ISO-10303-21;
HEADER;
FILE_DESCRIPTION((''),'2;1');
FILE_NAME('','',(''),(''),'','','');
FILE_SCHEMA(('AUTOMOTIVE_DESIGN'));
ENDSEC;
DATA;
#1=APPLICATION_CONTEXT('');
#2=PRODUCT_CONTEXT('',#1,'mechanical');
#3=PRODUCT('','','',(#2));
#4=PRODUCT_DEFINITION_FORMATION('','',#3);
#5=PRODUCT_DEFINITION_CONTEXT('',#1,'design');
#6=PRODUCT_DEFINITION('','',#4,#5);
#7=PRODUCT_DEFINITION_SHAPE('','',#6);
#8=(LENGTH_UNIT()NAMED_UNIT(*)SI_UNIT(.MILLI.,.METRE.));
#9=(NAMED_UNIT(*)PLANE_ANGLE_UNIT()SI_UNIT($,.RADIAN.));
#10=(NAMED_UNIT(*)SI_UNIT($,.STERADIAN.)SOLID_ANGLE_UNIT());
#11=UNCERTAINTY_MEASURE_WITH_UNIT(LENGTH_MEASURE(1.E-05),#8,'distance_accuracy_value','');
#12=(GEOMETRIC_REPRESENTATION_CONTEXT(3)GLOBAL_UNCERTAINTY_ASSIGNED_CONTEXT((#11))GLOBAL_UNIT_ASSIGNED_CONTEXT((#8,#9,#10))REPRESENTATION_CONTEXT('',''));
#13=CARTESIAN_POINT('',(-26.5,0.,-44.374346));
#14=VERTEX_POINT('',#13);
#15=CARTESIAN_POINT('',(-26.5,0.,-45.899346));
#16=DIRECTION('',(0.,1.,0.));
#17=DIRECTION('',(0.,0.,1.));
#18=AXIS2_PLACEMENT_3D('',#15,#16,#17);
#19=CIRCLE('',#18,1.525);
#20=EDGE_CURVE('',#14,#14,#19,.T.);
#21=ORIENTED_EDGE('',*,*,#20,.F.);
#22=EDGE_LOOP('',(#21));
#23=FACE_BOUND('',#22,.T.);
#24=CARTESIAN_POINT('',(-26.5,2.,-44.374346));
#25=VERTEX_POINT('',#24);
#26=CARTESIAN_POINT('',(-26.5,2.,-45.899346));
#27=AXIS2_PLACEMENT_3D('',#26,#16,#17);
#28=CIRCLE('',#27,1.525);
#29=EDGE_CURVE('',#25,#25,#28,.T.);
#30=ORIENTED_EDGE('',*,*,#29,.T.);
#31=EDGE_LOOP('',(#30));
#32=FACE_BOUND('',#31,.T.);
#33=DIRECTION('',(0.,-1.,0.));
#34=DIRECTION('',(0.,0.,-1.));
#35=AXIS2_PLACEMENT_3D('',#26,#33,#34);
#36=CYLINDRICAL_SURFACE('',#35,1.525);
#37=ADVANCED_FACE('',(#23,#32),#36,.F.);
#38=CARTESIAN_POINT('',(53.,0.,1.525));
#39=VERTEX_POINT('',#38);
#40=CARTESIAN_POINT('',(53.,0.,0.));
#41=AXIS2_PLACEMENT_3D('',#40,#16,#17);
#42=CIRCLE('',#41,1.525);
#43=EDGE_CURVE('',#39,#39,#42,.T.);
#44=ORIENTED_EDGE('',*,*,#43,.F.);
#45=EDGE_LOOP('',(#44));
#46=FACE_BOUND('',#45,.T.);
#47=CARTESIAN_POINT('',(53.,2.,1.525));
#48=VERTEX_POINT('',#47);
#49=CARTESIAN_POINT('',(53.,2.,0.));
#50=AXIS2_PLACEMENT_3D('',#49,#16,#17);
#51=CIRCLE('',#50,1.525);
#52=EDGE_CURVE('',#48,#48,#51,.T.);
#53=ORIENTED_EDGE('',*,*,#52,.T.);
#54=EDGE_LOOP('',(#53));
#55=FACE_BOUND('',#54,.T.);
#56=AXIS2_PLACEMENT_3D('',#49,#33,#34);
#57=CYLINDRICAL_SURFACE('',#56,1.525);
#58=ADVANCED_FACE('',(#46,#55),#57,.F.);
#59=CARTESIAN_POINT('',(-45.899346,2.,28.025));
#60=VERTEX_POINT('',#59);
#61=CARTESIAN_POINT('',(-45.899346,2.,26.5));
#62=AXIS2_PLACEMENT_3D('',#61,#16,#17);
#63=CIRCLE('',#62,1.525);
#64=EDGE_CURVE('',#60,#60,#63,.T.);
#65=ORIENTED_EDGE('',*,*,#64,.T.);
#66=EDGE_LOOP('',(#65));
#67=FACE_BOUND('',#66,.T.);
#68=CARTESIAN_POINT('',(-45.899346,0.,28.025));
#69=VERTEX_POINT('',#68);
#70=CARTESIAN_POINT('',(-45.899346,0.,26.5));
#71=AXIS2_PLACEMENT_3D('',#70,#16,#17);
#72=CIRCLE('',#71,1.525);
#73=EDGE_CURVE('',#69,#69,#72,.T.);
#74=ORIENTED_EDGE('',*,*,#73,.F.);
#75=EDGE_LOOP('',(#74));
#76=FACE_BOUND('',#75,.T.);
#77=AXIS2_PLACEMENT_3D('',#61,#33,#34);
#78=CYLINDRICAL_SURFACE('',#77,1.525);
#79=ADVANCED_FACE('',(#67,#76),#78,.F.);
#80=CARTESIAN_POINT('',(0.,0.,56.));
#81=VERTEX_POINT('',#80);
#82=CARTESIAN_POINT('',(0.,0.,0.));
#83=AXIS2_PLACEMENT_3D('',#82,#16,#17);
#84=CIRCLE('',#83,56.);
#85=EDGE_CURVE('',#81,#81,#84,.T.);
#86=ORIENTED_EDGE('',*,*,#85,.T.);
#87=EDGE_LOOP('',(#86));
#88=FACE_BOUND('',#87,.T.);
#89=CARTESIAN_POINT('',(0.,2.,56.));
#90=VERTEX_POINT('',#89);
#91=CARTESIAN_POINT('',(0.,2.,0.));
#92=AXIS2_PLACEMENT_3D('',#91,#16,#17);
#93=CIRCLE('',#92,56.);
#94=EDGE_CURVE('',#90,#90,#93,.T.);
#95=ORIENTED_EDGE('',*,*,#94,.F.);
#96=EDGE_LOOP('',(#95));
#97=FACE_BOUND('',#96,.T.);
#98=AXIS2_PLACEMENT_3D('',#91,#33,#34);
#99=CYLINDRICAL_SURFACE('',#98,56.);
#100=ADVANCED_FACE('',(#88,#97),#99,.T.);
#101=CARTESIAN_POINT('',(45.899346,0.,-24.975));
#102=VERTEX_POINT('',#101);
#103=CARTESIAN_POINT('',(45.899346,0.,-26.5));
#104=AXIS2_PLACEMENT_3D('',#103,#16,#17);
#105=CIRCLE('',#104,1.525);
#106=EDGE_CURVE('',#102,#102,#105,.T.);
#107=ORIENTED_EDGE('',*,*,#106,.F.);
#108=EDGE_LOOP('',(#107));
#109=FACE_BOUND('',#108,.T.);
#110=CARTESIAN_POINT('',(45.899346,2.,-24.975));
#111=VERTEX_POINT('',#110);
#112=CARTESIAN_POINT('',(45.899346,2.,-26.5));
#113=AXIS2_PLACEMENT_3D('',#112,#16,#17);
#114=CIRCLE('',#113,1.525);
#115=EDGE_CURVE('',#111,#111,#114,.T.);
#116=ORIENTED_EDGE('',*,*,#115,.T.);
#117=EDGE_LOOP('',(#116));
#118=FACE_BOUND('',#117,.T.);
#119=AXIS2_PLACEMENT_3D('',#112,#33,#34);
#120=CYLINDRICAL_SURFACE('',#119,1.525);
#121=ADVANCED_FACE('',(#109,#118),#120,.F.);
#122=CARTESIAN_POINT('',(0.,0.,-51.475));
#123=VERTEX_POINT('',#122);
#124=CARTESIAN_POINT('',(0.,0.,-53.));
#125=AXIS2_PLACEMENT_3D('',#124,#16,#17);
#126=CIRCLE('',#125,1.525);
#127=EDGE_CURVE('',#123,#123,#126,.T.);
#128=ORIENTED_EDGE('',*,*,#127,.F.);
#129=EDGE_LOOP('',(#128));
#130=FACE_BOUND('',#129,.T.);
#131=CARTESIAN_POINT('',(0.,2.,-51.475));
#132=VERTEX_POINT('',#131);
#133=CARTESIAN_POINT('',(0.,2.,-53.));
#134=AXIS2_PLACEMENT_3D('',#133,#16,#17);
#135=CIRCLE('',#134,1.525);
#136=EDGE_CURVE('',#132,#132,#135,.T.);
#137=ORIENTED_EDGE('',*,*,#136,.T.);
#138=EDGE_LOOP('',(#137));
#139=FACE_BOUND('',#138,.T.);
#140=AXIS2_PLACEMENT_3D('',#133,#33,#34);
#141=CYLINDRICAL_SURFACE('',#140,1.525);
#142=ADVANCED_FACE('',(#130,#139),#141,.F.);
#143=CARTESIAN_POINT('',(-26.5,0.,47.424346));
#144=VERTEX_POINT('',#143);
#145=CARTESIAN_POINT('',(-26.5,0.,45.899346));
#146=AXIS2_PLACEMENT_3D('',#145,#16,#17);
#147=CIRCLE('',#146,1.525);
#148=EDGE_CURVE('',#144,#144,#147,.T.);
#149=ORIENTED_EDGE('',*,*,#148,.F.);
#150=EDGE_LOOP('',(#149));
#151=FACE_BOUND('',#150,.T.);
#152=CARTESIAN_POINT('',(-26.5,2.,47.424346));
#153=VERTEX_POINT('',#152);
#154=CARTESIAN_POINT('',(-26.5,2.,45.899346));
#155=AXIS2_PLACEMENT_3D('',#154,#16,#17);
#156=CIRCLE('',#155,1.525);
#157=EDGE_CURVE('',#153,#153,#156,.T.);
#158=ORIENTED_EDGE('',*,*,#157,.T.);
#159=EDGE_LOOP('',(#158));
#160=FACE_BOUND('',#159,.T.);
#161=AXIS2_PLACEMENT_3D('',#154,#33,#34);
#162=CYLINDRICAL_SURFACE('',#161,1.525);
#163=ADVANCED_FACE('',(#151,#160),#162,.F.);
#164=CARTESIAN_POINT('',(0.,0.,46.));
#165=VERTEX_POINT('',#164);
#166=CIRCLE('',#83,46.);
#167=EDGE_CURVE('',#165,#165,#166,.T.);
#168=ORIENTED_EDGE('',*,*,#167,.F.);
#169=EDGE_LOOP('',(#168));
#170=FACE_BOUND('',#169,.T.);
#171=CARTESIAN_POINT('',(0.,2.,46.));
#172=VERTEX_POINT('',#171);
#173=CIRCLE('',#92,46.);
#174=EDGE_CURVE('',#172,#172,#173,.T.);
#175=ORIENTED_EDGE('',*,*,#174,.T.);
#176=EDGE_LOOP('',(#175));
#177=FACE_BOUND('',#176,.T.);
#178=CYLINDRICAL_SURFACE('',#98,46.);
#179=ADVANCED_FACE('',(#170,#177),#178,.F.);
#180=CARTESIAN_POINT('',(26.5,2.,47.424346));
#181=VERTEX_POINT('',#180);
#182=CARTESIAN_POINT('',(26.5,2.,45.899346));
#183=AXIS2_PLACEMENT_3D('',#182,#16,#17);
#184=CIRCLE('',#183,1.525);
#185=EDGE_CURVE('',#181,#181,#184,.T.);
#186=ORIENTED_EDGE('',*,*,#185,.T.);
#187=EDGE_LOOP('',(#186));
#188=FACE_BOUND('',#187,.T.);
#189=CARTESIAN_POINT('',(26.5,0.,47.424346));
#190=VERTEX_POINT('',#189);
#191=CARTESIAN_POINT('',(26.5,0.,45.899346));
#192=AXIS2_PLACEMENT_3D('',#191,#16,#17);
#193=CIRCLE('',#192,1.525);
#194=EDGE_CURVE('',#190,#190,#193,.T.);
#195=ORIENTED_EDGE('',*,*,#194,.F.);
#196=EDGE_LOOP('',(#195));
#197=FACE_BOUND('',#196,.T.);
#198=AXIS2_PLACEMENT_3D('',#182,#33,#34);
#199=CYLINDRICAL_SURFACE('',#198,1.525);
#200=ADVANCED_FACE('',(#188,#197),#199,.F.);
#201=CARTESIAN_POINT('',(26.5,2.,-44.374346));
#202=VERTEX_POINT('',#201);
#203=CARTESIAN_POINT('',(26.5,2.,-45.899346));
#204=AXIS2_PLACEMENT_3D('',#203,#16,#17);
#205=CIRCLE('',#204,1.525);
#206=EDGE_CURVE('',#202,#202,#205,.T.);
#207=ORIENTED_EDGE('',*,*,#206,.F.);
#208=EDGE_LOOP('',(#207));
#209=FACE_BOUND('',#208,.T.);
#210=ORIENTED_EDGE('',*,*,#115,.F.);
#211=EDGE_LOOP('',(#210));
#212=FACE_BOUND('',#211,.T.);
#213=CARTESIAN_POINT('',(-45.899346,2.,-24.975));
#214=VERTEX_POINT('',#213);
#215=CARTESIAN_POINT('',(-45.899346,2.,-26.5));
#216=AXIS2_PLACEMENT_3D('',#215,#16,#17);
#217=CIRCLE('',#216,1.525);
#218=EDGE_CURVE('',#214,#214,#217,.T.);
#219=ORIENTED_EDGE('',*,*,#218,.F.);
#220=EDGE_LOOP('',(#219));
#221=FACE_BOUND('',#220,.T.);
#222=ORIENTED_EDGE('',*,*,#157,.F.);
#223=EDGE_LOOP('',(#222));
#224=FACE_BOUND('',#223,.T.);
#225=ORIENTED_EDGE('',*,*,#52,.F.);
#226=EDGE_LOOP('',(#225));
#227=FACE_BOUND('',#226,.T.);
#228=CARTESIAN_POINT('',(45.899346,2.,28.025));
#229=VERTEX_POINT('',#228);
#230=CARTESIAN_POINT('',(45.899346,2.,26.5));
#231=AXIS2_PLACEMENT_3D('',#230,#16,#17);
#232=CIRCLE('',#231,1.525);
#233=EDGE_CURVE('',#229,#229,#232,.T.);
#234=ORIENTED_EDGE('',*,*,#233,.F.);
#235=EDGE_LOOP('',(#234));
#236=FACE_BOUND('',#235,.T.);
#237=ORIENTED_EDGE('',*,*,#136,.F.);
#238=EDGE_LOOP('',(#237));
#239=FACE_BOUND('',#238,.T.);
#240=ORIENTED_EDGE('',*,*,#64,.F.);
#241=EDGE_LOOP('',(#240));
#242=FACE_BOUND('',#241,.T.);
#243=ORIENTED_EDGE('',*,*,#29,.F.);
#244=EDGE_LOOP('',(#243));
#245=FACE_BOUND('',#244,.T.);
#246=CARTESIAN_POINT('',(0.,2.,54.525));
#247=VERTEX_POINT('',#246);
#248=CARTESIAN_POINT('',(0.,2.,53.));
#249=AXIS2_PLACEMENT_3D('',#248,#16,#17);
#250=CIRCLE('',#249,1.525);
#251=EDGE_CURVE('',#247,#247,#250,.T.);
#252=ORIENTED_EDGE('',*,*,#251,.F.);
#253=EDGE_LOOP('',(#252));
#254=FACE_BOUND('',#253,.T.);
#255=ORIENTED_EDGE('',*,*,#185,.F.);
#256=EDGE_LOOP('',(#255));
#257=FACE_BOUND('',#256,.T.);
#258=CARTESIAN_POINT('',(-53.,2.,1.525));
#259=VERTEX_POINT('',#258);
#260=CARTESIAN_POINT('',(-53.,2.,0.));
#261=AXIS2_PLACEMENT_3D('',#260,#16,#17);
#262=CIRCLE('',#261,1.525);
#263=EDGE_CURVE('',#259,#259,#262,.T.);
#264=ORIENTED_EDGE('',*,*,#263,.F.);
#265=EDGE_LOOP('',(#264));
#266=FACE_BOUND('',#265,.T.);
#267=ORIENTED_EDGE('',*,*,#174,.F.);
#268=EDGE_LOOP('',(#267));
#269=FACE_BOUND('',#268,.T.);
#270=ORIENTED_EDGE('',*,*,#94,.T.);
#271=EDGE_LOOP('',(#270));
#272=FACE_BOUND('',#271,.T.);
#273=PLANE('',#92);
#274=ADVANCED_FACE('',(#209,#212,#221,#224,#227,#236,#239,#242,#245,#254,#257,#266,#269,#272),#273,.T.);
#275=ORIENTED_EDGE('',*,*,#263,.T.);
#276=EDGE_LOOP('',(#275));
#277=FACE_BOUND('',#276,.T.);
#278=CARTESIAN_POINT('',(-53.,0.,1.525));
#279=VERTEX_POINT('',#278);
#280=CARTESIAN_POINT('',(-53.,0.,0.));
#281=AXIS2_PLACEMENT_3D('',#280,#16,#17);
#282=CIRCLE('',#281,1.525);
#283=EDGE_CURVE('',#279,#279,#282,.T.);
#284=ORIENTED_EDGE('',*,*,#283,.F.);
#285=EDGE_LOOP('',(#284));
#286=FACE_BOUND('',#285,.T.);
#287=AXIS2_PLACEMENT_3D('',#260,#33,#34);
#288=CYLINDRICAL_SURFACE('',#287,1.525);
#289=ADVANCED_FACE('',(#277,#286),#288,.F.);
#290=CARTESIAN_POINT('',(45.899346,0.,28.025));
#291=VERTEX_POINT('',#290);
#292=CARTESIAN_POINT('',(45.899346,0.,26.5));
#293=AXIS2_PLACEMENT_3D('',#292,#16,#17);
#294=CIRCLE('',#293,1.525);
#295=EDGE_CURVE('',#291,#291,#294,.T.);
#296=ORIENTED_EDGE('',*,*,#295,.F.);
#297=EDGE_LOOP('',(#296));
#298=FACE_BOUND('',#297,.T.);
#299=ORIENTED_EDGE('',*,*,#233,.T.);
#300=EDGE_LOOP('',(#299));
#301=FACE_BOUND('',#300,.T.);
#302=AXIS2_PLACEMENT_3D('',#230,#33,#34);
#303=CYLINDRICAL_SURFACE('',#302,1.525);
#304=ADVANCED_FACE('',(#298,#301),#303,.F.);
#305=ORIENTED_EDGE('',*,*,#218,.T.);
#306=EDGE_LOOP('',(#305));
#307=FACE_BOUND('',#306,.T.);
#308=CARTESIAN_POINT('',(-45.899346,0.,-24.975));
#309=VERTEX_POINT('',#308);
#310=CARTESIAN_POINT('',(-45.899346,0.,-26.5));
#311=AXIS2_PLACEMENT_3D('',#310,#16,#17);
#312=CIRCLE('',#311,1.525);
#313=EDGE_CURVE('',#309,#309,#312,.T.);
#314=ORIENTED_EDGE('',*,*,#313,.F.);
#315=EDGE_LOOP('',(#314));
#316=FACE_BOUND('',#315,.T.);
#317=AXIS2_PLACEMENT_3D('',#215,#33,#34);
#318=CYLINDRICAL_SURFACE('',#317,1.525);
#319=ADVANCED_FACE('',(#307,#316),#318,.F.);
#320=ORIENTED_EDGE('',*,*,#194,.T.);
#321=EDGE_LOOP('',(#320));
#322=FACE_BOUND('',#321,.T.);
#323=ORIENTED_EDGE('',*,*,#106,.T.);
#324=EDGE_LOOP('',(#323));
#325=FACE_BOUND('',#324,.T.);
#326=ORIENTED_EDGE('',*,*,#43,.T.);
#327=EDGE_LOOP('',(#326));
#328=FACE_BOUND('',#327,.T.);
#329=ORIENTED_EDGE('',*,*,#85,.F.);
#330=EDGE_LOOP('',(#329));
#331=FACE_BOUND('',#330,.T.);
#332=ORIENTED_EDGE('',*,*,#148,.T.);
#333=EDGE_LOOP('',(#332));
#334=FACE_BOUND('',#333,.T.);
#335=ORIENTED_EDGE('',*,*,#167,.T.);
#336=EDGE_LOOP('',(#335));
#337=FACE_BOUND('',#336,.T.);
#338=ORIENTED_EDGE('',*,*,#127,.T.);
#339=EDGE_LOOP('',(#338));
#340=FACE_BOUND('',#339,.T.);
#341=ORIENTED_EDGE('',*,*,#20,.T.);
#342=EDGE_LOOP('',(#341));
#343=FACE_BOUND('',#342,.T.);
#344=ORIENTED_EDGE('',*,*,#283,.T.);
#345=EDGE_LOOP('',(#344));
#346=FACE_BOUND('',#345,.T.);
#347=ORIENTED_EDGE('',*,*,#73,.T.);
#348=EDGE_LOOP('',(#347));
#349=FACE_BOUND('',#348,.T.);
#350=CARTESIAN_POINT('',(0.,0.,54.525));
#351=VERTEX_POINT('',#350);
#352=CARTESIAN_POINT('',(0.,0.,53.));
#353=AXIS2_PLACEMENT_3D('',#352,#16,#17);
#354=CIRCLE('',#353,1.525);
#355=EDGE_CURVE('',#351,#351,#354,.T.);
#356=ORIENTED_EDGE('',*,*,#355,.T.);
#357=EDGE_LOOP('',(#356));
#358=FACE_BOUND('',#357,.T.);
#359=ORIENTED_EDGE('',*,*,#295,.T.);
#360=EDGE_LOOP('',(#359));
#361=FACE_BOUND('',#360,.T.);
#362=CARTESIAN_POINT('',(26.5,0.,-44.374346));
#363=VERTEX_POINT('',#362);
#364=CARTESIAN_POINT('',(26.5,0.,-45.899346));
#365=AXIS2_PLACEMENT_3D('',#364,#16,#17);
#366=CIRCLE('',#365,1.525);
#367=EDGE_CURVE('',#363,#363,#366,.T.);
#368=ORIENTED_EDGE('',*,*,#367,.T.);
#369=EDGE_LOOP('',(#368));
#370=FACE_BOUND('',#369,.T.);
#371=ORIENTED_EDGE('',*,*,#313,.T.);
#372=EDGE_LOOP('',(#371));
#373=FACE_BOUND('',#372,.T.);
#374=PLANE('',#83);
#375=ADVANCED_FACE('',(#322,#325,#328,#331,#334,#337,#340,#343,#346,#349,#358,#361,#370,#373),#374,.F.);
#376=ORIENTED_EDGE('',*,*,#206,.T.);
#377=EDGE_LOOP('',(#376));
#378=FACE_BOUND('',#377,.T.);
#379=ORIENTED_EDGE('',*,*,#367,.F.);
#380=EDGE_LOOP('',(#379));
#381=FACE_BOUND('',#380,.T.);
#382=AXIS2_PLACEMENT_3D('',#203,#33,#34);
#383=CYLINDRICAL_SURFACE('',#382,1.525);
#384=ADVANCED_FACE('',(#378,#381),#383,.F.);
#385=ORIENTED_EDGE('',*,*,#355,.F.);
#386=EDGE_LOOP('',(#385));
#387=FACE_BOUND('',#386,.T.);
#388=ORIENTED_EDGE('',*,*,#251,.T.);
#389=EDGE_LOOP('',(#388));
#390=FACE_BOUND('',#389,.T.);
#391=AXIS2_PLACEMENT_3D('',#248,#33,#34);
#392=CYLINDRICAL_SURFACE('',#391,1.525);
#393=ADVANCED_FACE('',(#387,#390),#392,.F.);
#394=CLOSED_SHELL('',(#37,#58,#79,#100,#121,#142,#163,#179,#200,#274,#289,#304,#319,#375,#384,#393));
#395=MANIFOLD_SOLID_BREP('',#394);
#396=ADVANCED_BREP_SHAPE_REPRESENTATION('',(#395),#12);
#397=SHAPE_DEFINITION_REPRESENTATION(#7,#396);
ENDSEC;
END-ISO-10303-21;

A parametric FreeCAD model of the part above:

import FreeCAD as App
import Part
import Sketcher
from FreeCAD import Vector

doc = App.newDocument("Part")
params = doc.addObject("Spreadsheet::Sheet", "Params")
for row, (alias, value) in enumerate([
    ("sketch1_diameter", "112 mm"),
    ("sketch1_diameter2", "92 mm"),
    ("sketch1_diameter3", "3.05 mm"),
    ("pad1_length", "2 mm"),
], start=1):
    params.set(f"A{row}", alias)
    params.set(f"B{row}", "=" + value)
    params.setAlias(f"B{row}", alias)

body = doc.addObject("PartDesign::Body", "Body")

# Sketch on XZ plane
sketch1 = body.newObject("Sketcher::SketchObject", "Sketch")
sketch1.AttachmentSupport = (doc.getObject("XZ_Plane"), [""])
sketch1.MapMode = "FlatFace"
sketch1.addGeometry([
    Part.Circle(Vector(0, 0, 0), Vector(0, 0, 1), 56),  # 0
    Part.Circle(Vector(-45.899346, -26.5, 0), Vector(0, 0, 1), 1.525),  # 1
    Part.Circle(Vector(-26.5, -45.899346, 0), Vector(0, 0, 1), 1.525),  # 2
    Part.Circle(Vector(0, -53, 0), Vector(0, 0, 1), 1.525),  # 3
    Part.Circle(Vector(0, 0, 0), Vector(0, 0, 1), 46),  # 4
    Part.Circle(Vector(-53, 0, 0), Vector(0, 0, 1), 1.525),  # 5
    Part.Circle(Vector(-45.899346, 26.5, 0), Vector(0, 0, 1), 1.525),  # 6
    Part.Circle(Vector(-26.5, 45.899346, 0), Vector(0, 0, 1), 1.525),  # 7
    Part.Circle(Vector(26.5, -45.899346, 0), Vector(0, 0, 1), 1.525),  # 8
    Part.Circle(Vector(45.899346, -26.5, 0), Vector(0, 0, 1), 1.525),  # 9
    Part.Circle(Vector(53, 0, 0), Vector(0, 0, 1), 1.525),  # 10
    Part.Circle(Vector(0, 53, 0), Vector(0, 0, 1), 1.525),  # 11
    Part.Circle(Vector(26.5, 45.899346, 0), Vector(0, 0, 1), 1.525),  # 12
    Part.Circle(Vector(45.899346, 26.5, 0), Vector(0, 0, 1), 1.525),  # 13
], False)
sketch1.addConstraint([
    Sketcher.Constraint("Coincident", 0, 3, -1, 1),
    Sketcher.Constraint("Coincident", 4, 3, -1, 1),
    Sketcher.Constraint("Equal", 1, 2),
    Sketcher.Constraint("Equal", 2, 3),
    Sketcher.Constraint("Equal", 3, 5),
    Sketcher.Constraint("Equal", 5, 6),
    Sketcher.Constraint("Equal", 6, 7),
    Sketcher.Constraint("Equal", 7, 8),
    Sketcher.Constraint("Equal", 8, 9),
    Sketcher.Constraint("Equal", 9, 10),
    Sketcher.Constraint("Equal", 10, 11),
    Sketcher.Constraint("Equal", 11, 12),
    Sketcher.Constraint("Equal", 12, 13),
    Sketcher.Constraint("Symmetric", 7, 3, 8, 3, -1, 1),
    Sketcher.Constraint("Symmetric", 6, 3, 9, 3, -1, 1),
    Sketcher.Constraint("Symmetric", 5, 3, 10, 3, -1, 1),
    Sketcher.Constraint("Symmetric", 3, 3, 11, 3, -1, 1),
    Sketcher.Constraint("Symmetric", 2, 3, 12, 3, -1, 1),
    Sketcher.Constraint("Symmetric", 1, 3, 13, 3, -1, 1),
    Sketcher.Constraint("Symmetric", 2, 3, 8, 3, -2),
    Sketcher.Constraint("Symmetric", 1, 3, 9, 3, -2),
    Sketcher.Constraint("PointOnObject", 3, 3, -2),
    Sketcher.Constraint("PointOnObject", 5, 3, -1),
    Sketcher.Constraint("Diameter", 0, 112.0),
    Sketcher.Constraint("Diameter", 4, 92.0),
    Sketcher.Constraint("Diameter", 1, 3.05),
    Sketcher.Constraint("DistanceY", 3, 3, -1, 1, 53.0),
    Sketcher.Constraint("DistanceX", 5, 3, -1, 1, 53.0),
    Sketcher.Constraint("DistanceY", 1, 3, 6, 3, 53.0),
    Sketcher.Constraint("DistanceX", 2, 3, 8, 3, 53.0),
    Sketcher.Constraint("DistanceX", 1, 3, -1, 1, 45.899346),
    Sketcher.Constraint("DistanceY", 2, 3, -1, 1, 45.899346),
])
sketch1.setExpression("Constraints[23]", "Params.sketch1_diameter")
sketch1.setExpression("Constraints[24]", "Params.sketch1_diameter2")
sketch1.setExpression("Constraints[25]", "Params.sketch1_diameter3")
pad1 = body.newObject("PartDesign::Pad", "Pad")
pad1.Profile = sketch1
pad1.setExpression("Length", "Params.pad1_length")
pad1.Reversed = True

doc.recompute()
